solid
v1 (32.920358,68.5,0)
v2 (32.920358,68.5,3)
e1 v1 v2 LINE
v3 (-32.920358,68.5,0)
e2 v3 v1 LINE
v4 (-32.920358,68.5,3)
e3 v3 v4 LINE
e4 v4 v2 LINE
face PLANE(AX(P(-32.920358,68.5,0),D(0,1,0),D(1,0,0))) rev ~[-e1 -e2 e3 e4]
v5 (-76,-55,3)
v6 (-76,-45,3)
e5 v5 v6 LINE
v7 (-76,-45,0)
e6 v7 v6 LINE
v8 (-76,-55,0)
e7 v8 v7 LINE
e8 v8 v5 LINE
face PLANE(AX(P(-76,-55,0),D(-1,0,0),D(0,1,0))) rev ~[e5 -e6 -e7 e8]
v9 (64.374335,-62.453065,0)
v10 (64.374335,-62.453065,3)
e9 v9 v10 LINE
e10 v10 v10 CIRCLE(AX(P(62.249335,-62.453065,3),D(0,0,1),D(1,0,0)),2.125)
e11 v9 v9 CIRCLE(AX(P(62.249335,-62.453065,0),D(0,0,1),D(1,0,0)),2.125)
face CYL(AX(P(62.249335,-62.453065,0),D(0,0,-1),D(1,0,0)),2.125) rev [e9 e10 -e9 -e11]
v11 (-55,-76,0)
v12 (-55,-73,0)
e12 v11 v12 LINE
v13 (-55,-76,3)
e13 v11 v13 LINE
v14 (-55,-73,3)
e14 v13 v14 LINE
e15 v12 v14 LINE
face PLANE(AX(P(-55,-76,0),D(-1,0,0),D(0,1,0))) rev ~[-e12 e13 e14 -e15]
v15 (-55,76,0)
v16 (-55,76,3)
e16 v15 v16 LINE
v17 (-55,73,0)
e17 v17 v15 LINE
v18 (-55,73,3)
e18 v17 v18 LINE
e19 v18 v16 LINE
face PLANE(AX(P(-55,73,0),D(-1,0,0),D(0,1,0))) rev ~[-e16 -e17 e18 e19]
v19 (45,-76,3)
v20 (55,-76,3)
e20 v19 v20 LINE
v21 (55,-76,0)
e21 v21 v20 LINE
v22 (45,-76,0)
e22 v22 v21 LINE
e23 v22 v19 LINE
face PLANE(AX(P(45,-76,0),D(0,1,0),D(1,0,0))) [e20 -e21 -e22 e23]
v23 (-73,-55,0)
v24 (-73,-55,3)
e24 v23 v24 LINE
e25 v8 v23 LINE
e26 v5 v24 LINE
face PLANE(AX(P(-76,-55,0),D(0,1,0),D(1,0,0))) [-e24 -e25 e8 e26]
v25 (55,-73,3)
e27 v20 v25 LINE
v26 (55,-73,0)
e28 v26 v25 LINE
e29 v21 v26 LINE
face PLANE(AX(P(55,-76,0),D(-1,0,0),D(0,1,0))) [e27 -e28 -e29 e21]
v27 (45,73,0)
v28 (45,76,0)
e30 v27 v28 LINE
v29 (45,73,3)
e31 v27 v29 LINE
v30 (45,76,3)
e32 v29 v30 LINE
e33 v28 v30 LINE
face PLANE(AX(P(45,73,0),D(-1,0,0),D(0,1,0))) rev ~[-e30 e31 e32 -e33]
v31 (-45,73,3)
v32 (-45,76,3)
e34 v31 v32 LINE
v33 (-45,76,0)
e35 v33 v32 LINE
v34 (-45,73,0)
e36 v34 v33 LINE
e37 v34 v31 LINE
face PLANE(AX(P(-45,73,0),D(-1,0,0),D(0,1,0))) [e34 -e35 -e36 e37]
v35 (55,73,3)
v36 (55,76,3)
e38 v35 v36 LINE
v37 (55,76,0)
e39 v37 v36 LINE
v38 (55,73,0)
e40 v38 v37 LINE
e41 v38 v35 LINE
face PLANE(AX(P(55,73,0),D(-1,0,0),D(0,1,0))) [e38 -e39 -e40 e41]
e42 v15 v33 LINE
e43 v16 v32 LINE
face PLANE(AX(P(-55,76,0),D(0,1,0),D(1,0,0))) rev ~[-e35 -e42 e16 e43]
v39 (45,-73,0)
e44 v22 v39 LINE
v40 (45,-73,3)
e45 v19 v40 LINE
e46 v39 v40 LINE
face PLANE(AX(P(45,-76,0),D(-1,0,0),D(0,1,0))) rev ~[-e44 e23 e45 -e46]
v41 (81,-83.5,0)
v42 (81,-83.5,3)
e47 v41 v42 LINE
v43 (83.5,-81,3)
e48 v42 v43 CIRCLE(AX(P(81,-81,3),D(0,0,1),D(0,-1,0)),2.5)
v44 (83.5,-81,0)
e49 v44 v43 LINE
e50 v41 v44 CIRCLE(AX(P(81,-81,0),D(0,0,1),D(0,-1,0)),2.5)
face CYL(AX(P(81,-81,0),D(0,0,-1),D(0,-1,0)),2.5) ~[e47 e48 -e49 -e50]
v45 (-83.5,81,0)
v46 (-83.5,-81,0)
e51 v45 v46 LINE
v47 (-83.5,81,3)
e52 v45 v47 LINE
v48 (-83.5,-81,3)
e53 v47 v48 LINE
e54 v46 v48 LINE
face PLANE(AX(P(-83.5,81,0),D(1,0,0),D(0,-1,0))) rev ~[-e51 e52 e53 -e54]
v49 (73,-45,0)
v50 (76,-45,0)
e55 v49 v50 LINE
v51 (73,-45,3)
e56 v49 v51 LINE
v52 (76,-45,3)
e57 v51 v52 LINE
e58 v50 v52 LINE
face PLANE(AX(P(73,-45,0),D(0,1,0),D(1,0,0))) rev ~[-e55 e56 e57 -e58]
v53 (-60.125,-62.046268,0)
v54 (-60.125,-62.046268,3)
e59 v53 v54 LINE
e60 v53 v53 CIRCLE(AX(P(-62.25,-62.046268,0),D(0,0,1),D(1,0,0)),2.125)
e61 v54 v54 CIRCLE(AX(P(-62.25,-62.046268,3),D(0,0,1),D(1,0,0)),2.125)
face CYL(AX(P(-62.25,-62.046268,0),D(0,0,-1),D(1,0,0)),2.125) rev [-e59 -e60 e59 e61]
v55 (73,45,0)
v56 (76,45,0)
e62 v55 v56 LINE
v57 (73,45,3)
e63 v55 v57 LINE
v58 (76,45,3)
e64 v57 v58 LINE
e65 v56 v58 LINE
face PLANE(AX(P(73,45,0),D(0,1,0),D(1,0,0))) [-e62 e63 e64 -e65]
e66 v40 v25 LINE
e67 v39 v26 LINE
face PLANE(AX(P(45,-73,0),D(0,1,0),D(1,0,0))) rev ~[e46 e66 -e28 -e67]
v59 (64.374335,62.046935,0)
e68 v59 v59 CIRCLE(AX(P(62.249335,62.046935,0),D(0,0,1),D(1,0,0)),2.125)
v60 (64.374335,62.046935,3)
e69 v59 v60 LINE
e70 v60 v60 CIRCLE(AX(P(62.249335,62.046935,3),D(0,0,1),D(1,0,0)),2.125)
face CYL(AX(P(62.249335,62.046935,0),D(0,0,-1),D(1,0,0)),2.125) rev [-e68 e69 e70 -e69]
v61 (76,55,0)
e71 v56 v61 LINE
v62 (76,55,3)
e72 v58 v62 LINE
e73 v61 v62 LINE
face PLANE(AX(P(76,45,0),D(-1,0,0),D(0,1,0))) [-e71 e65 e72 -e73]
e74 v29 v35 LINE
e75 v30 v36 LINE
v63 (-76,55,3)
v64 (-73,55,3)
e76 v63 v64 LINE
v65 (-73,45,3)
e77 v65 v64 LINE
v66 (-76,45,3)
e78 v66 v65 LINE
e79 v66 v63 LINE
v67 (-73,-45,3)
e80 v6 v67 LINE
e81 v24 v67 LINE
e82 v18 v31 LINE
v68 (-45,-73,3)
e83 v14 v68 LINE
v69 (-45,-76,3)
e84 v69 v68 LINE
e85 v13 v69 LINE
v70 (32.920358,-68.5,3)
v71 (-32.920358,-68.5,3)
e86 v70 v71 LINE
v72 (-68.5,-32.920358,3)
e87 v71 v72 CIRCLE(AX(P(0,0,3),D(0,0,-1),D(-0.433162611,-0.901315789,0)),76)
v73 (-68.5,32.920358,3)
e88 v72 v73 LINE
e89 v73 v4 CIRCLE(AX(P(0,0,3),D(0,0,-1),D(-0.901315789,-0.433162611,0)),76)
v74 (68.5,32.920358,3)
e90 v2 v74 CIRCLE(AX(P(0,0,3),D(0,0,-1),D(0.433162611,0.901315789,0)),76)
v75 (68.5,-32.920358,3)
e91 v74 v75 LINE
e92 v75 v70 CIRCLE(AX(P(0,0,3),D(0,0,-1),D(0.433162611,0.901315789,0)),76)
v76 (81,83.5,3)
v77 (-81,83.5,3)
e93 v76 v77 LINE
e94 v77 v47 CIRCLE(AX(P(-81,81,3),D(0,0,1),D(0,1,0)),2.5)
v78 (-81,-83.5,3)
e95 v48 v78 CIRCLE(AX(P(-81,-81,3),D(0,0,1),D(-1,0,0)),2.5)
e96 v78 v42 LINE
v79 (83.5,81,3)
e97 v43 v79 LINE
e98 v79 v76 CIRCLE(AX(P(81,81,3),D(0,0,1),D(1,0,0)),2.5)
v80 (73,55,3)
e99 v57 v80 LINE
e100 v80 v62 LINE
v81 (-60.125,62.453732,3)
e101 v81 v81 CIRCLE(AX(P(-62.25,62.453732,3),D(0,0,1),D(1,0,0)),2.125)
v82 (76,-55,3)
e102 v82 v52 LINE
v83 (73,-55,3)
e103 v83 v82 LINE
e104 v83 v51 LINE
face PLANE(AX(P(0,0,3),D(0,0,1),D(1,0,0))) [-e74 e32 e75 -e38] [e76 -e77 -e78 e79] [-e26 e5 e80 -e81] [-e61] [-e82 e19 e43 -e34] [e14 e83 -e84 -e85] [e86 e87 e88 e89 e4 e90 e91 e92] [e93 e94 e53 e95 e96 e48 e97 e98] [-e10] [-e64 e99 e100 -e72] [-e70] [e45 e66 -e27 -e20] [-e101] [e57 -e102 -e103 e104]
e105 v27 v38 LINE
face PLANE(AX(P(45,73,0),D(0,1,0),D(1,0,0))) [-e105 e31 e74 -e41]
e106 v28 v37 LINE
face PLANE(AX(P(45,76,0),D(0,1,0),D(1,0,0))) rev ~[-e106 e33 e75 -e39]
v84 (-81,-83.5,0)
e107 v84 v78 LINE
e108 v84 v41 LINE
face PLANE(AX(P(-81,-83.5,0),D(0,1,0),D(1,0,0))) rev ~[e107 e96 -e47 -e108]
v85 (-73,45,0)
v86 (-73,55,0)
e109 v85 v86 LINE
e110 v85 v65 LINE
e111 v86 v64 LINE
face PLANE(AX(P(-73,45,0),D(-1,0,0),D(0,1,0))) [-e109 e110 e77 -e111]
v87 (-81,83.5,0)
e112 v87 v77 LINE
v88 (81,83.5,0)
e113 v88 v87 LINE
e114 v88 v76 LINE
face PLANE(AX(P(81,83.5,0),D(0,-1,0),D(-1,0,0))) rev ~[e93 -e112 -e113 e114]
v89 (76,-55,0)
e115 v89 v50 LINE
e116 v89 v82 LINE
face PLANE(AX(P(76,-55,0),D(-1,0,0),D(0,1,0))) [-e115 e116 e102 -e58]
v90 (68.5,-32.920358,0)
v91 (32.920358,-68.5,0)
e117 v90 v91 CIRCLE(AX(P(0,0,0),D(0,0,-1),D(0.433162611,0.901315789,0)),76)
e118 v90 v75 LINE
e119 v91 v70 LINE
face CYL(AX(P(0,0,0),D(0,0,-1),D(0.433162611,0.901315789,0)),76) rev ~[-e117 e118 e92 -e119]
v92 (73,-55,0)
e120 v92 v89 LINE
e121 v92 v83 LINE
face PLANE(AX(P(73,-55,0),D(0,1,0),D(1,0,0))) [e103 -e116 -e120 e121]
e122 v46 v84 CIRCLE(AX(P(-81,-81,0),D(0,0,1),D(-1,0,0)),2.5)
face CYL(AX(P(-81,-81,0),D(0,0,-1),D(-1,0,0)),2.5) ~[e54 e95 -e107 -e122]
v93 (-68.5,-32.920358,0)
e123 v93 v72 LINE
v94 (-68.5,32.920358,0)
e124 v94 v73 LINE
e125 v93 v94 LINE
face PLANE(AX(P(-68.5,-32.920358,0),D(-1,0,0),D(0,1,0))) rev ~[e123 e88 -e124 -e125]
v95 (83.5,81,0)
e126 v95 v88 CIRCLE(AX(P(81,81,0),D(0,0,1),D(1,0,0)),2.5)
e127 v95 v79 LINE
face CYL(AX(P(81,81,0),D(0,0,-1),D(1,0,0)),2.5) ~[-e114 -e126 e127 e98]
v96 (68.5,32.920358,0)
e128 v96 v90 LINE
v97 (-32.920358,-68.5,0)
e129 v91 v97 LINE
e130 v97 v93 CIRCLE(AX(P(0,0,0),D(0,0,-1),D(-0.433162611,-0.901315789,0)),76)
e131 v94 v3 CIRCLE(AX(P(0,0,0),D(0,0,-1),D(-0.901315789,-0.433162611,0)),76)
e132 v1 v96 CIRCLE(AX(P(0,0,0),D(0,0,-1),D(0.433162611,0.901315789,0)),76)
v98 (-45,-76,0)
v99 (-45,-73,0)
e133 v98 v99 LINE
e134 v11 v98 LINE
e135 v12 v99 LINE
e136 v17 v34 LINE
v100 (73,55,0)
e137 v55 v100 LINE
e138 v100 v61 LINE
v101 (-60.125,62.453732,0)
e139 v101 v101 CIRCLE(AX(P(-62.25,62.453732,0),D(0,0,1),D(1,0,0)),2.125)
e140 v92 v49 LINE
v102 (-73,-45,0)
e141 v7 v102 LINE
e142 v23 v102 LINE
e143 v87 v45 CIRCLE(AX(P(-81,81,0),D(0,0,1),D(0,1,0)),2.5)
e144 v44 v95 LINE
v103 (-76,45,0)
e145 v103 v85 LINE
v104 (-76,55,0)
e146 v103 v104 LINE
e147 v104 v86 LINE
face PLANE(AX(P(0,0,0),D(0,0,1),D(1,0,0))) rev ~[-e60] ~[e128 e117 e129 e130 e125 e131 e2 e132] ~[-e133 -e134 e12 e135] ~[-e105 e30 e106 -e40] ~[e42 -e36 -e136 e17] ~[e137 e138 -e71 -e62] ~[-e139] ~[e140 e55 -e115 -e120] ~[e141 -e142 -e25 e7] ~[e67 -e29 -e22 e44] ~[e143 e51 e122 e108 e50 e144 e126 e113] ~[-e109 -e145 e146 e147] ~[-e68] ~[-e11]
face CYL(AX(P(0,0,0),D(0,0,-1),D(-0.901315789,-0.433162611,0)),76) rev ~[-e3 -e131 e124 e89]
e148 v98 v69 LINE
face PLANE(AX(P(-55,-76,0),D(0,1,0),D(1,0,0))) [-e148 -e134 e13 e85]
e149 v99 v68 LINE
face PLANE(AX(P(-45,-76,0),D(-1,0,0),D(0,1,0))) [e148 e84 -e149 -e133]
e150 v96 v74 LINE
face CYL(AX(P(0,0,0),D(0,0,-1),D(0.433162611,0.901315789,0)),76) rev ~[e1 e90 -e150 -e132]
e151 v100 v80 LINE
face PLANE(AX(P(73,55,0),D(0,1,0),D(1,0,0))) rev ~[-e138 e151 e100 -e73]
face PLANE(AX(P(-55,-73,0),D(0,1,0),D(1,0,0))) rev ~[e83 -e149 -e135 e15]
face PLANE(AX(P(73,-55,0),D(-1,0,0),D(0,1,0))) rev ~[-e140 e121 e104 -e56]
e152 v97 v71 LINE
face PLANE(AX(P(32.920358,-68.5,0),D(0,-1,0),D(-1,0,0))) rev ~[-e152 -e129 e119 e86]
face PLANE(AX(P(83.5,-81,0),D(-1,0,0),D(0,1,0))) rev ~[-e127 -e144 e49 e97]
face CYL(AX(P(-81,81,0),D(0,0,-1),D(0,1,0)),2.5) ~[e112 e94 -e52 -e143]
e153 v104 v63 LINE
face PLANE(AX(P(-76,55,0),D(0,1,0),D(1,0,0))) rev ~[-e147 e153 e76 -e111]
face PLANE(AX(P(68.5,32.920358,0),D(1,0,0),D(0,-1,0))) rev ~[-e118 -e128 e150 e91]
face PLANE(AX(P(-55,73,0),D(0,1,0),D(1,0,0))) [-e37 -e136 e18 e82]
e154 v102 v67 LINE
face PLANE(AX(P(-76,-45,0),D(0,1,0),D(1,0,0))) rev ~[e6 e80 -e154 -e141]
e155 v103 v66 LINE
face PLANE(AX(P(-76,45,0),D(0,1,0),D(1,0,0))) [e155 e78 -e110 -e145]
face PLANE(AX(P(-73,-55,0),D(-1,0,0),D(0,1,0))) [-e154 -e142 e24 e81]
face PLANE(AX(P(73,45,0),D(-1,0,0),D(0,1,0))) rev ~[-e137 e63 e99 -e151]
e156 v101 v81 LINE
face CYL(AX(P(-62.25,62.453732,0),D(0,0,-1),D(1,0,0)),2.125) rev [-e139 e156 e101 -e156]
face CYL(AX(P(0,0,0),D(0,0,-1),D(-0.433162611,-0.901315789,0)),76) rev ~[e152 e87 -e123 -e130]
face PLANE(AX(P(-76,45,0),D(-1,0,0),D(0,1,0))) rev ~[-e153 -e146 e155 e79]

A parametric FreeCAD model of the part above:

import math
import FreeCAD as App
import Part
import Sketcher
from FreeCAD import Vector
Q = App.Units.Quantity

doc = App.newDocument("Part")
body = doc.addObject("PartDesign::Body", "Body")

sketch1 = body.newObject("Sketcher::SketchObject", "Sketch")
sketch1.AttachmentSupport = (doc.getObject("XY_Plane"), [""])
sketch1.MapMode = "FlatFace"
sketch1.addGeometry([
    Part.LineSegment(Vector(81, 83.5, 0), Vector(-81, 83.5, 0)),
    Part.ArcOfCircle(Part.Circle(Vector(-81, 81, 0), Vector(0, 0, 1), 2.5), math.radians(90), math.radians(180)),
    Part.LineSegment(Vector(-83.5, 81, 0), Vector(-83.5, -81, 0)),
    Part.ArcOfCircle(Part.Circle(Vector(-81, -81, 0), Vector(0, 0, 1), 2.5), math.radians(180), math.radians(270)),
    Part.LineSegment(Vector(-81, -83.5, 0), Vector(81, -83.5, 0)),
    Part.ArcOfCircle(Part.Circle(Vector(81, -81, 0), Vector(0, 0, 1), 2.5), math.radians(-90), math.radians(0)),
    Part.LineSegment(Vector(83.5, -81, 0), Vector(83.5, 81, 0)),
    Part.ArcOfCircle(Part.Circle(Vector(81, 81, 0), Vector(0, 0, 1), 2.5), math.radians(0), math.radians(90)),
    Part.Circle(Vector(-62.2, -62, 0), Vector(0, 0, 1), 2.1),
    Part.LineSegment(Vector(-45, -76, 0), Vector(-55, -76, 0)),
    Part.LineSegment(Vector(-55, -76, 0), Vector(-55, -73, 0)),
    Part.LineSegment(Vector(-55, -73, 0), Vector(-45, -73, 0)),
    Part.LineSegment(Vector(-45, -73, 0), Vector(-45, -76, 0)),
    Part.LineSegment(Vector(-73, -55, 0), Vector(-76, -55, 0)),
    Part.LineSegment(Vector(-76, -55, 0), Vector(-76, -45, 0)),
    Part.LineSegment(Vector(-76, -45, 0), Vector(-73, -45, 0)),
    Part.LineSegment(Vector(-73, -45, 0), Vector(-73, -55, 0)),
    Part.LineSegment(Vector(55, -76, 0), Vector(45, -76, 0)),
    Part.LineSegment(Vector(45, -76, 0), Vector(45, -73, 0)),
    Part.LineSegment(Vector(45, -73, 0), Vector(55, -73, 0)),
    Part.LineSegment(Vector(55, -73, 0), Vector(55, -76, 0)),
    Part.Circle(Vector(62.2, -62.5, 0), Vector(0, 0, 1), 2.1),
    Part.LineSegment(Vector(76, -55, 0), Vector(73, -55, 0)),
    Part.LineSegment(Vector(73, -55, 0), Vector(73, -45, 0)),
    Part.LineSegment(Vector(73, -45, 0), Vector(76, -45, 0)),
    Part.LineSegment(Vector(76, -45, 0), Vector(76, -55, 0)),
    Part.LineSegment(Vector(32.9, -68.5, 0), Vector(-32.9, -68.5, 0)),
    Part.ArcOfCircle(Part.Circle(Vector(0, 0, 0), Vector(0, 0, 1), 76), math.radians(-154), math.radians(-116)),
    Part.LineSegment(Vector(-68.5, -32.9, 0), Vector(-68.5, 32.9, 0)),
    Part.ArcOfCircle(Part.Circle(Vector(0, 0, 0), Vector(0, 0, 1), 76), math.radians(116), math.radians(154)),
    Part.LineSegment(Vector(-32.9, 68.5, 0), Vector(32.9, 68.5, 0)),
    Part.ArcOfCircle(Part.Circle(Vector(0, 0, 0), Vector(0, 0, 1), 76), math.radians(26), math.radians(64)),
    Part.LineSegment(Vector(68.5, 32.9, 0), Vector(68.5, -32.9, 0)),
    Part.ArcOfCircle(Part.Circle(Vector(0, 0, 0), Vector(0, 0, 1), 76), math.radians(-64), math.radians(-26)),
    Part.LineSegment(Vector(-73, 45, 0), Vector(-76, 45, 0)),
    Part.LineSegment(Vector(-76, 45, 0), Vector(-76, 55, 0)),
    Part.LineSegment(Vector(-76, 55, 0), Vector(-73, 55, 0)),
    Part.LineSegment(Vector(-73, 55, 0), Vector(-73, 45, 0)),
    Part.Circle(Vector(-62.2, 62.5, 0), Vector(0, 0, 1), 2.1),
    Part.LineSegment(Vector(-45, 73, 0), Vector(-55, 73, 0)),
    Part.LineSegment(Vector(-55, 73, 0), Vector(-55, 76, 0)),
    Part.LineSegment(Vector(-55, 76, 0), Vector(-45, 76, 0)),
    Part.LineSegment(Vector(-45, 76, 0), Vector(-45, 73, 0)),
    Part.LineSegment(Vector(76, 45, 0), Vector(73, 45, 0)),
    Part.LineSegment(Vector(73, 45, 0), Vector(73, 55, 0)),
    Part.LineSegment(Vector(73, 55, 0), Vector(76, 55, 0)),
    Part.LineSegment(Vector(76, 55, 0), Vector(76, 45, 0)),
    Part.LineSegment(Vector(55, 73, 0), Vector(45, 73, 0)),
    Part.LineSegment(Vector(45, 73, 0), Vector(45, 76, 0)),
    Part.LineSegment(Vector(45, 76, 0), Vector(55, 76, 0)),
    Part.LineSegment(Vector(55, 76, 0), Vector(55, 73, 0)),
    Part.Circle(Vector(62.2, 62, 0), Vector(0, 0, 1), 2.1),
], False)
sketch1.addConstraint([
    Sketcher.Constraint("Tangent", 0, 2, 1, 1),
    Sketcher.Constraint("Tangent", 1, 2, 2, 1),
    Sketcher.Constraint("Tangent", 2, 2, 3, 1),
    Sketcher.Constraint("Tangent", 3, 2, 4, 1),
    Sketcher.Constraint("Tangent", 4, 2, 5, 1),
    Sketcher.Constraint("Tangent", 5, 2, 6, 1),
    Sketcher.Constraint("Tangent", 6, 2, 7, 1),
    Sketcher.Constraint("Tangent", 7, 2, 0, 1),
    Sketcher.Constraint("Coincident", 9, 2, 10, 1),
    Sketcher.Constraint("Coincident", 10, 2, 11, 1),
    Sketcher.Constraint("Coincident", 11, 2, 12, 1),
    Sketcher.Constraint("Coincident", 12, 2, 9, 1),
    Sketcher.Constraint("Coincident", 13, 2, 14, 1),
    Sketcher.Constraint("Coincident", 14, 2, 15, 1),
    Sketcher.Constraint("Coincident", 15, 2, 16, 1),
    Sketcher.Constraint("Coincident", 16, 2, 13, 1),
    Sketcher.Constraint("Coincident", 17, 2, 18, 1),
    Sketcher.Constraint("Coincident", 18, 2, 19, 1),
    Sketcher.Constraint("Coincident", 19, 2, 20, 1),
    Sketcher.Constraint("Coincident", 20, 2, 17, 1),
    Sketcher.Constraint("Coincident", 22, 2, 23, 1),
    Sketcher.Constraint("Coincident", 23, 2, 24, 1),
    Sketcher.Constraint("Coincident", 24, 2, 25, 1),
    Sketcher.Constraint("Coincident", 25, 2, 22, 1),
    Sketcher.Constraint("Coincident", 26, 2, 27, 2),
    Sketcher.Constraint("Coincident", 27, 1, 28, 1),
    Sketcher.Constraint("Coincident", 28, 2, 29, 2),
    Sketcher.Constraint("Coincident", 29, 1, 30, 1),
    Sketcher.Constraint("Coincident", 30, 2, 31, 2),
    Sketcher.Constraint("Coincident", 31, 1, 32, 1),
    Sketcher.Constraint("Coincident", 32, 2, 33, 2),
    Sketcher.Constraint("Coincident", 33, 1, 26, 1),
    Sketcher.Constraint("Coincident", 34, 2, 35, 1),
    Sketcher.Constraint("Coincident", 35, 2, 36, 1),
    Sketcher.Constraint("Coincident", 36, 2, 37, 1),
    Sketcher.Constraint("Coincident", 37, 2, 34, 1),
    Sketcher.Constraint("Coincident", 39, 2, 40, 1),
    Sketcher.Constraint("Coincident", 40, 2, 41, 1),
    Sketcher.Constraint("Coincident", 41, 2, 42, 1),
    Sketcher.Constraint("Coincident", 42, 2, 39, 1),
    Sketcher.Constraint("Coincident", 43, 2, 44, 1),
    Sketcher.Constraint("Coincident", 44, 2, 45, 1),
    Sketcher.Constraint("Coincident", 45, 2, 46, 1),
    Sketcher.Constraint("Coincident", 46, 2, 43, 1),
    Sketcher.Constraint("Coincident", 47, 2, 48, 1),
    Sketcher.Constraint("Coincident", 48, 2, 49, 1),
    Sketcher.Constraint("Coincident", 49, 2, 50, 1),
    Sketcher.Constraint("Coincident", 50, 2, 47, 1),
    Sketcher.Constraint("Horizontal", 0),
    Sketcher.Constraint("Vertical", 2),
    Sketcher.Constraint("Horizontal", 4),
    Sketcher.Constraint("Vertical", 6),
    Sketcher.Constraint("Horizontal", 9),
    Sketcher.Constraint("Vertical", 10),
    Sketcher.Constraint("Horizontal", 11),
    Sketcher.Constraint("Vertical", 12),
    Sketcher.Constraint("Horizontal", 13),
    Sketcher.Constraint("Vertical", 14),
    Sketcher.Constraint("Horizontal", 15),
    Sketcher.Constraint("Vertical", 16),
    Sketcher.Constraint("Horizontal", 17),
    Sketcher.Constraint("Vertical", 18),
    Sketcher.Constraint("Horizontal", 19),
    Sketcher.Constraint("Vertical", 20),
    Sketcher.Constraint("Horizontal", 22),
    Sketcher.Constraint("Vertical", 23),
    Sketcher.Constraint("Horizontal", 24),
    Sketcher.Constraint("Vertical", 25),
    Sketcher.Constraint("Horizontal", 26),
    Sketcher.Constraint("Vertical", 28),
    Sketcher.Constraint("Horizontal", 30),
    Sketcher.Constraint("Vertical", 32),
    Sketcher.Constraint("Horizontal", 34),
    Sketcher.Constraint("Vertical", 35),
    Sketcher.Constraint("Horizontal", 36),
    Sketcher.Constraint("Vertical", 37),
    Sketcher.Constraint("Horizontal", 39),
    Sketcher.Constraint("Vertical", 40),
    Sketcher.Constraint("Horizontal", 41),
    Sketcher.Constraint("Vertical", 42),
    Sketcher.Constraint("Horizontal", 43),
    Sketcher.Constraint("Vertical", 44),
    Sketcher.Constraint("Horizontal", 45),
    Sketcher.Constraint("Vertical", 46),
    Sketcher.Constraint("Horizontal", 47),
    Sketcher.Constraint("Vertical", 48),
    Sketcher.Constraint("Horizontal", 49),
    Sketcher.Constraint("Vertical", 50),
    Sketcher.Constraint("Coincident", 27, 3, -1, 1),
    Sketcher.Constraint("Coincident", 29, 3, -1, 1),
    Sketcher.Constraint("Coincident", 31, 3, -1, 1),
    Sketcher.Constraint("Coincident", 33, 3, -1, 1),
    Sketcher.Constraint("Equal", 1, 3),
    Sketcher.Constraint("Equal", 3, 5),
    Sketcher.Constraint("Equal", 5, 7),
    Sketcher.Constraint("Equal", 8, 21),
    Sketcher.Constraint("Equal", 27, 29),
    Sketcher.Constraint("Equal", 29, 31),
    Sketcher.Constraint("Equal", 31, 33),
    Sketcher.Constraint("Equal", 21, 38),
    Sketcher.Constraint("Equal", 38, 51),
    Sketcher.Constraint("Symmetric", 1, 3, 5, 3, -1, 1),
    Sketcher.Constraint("Symmetric", 24, 2, 34, 2, -1, 1),
    Sketcher.Constraint("Symmetric", 22, 2, 36, 2, -1, 1),
    Sketcher.Constraint("Symmetric", 19, 2, 39, 2, -1, 1),
    Sketcher.Constraint("Symmetric", 17, 2, 41, 2, -1, 1),
    Sketcher.Constraint("Symmetric", 15, 2, 43, 2, -1, 1),
    Sketcher.Constraint("Symmetric", 13, 2, 45, 2, -1, 1),
    Sketcher.Constraint("Symmetric", 11, 2, 47, 2, -1, 1),
    Sketcher.Constraint("Symmetric", 9, 2, 49, 2, -1, 1),
    Sketcher.Constraint("Symmetric", 12, 2, 17, 2, -2),
    Sketcher.Constraint("Symmetric", 10, 2, 19, 2, -2),
    Sketcher.Constraint("Symmetric", 16, 2, 22, 2, -2),
    Sketcher.Constraint("Symmetric", 14, 2, 24, 2, -2),
    Sketcher.Constraint("Horizontal", 28, 2, 31, 1),
    Sketcher.Constraint("Vertical", 8, 3, 38, 3),
    Sketcher.Constraint("Vertical", 21, 3, 51, 3),
    Sketcher.Constraint("Vertical", 26, 2, 29, 1),
    Sketcher.Constraint("Equal", 4, 2),
    Sketcher.Constraint("Equal", 45, 10),
    Sketcher.Constraint("Equal", 49, 14),
    Sketcher.Constraint("Equal", 30, 28),
    Sketcher.Constraint("Radius", 27, Q("76 mm")),
    Sketcher.Constraint("Radius", 1, Q("2.5 mm")),
    Sketcher.Constraint("Diameter", 8, Q("4.25 mm")),
    Sketcher.Constraint("DistanceX", 0, 2, 0, 1, Q("162 mm")),
    Sketcher.Constraint("DistanceX", 9, 2, 9, 1, Q("10 mm")),
    Sketcher.Constraint("DistanceX", 13, 2, 13, 1, Q("3 mm")),
    Sketcher.Constraint("DistanceX", 9, 2, -1, 1, Q("55 mm")),
    Sketcher.Constraint("DistanceY", 9, 2, -1, 1, Q("76 mm")),
    Sketcher.Constraint("DistanceX", 13, 2, -1, 1, Q("76 mm")),
    Sketcher.Constraint("DistanceY", 13, 2, -1, 1, Q("55 mm")),
    Sketcher.Constraint("DistanceX", 1, 2, 28, 2, Q("15 mm")),
    Sketcher.Constraint("DistanceX", 8, 3, -1, 1, Q("62.25 mm")),
    Sketcher.Constraint("DistanceY", 8, 3, -1, 1, Q("62.046268 mm")),
    Sketcher.Constraint("DistanceY", -1, 1, 38, 3, Q("62.453732 mm")),
    Sketcher.Constraint("DistanceX", -1, 1, 21, 3, Q("62.249335 mm")),
    Sketcher.Constraint("DistanceY", 21, 3, -1, 1, Q("62.453065 mm")),
    Sketcher.Constraint("DistanceY", -1, 1, 51, 3, Q("62.046935 mm")),
])
pad1 = body.newObject("PartDesign::Pad", "Pad")
pad1.Profile = sketch1
pad1.Length = 3

doc.recompute()
